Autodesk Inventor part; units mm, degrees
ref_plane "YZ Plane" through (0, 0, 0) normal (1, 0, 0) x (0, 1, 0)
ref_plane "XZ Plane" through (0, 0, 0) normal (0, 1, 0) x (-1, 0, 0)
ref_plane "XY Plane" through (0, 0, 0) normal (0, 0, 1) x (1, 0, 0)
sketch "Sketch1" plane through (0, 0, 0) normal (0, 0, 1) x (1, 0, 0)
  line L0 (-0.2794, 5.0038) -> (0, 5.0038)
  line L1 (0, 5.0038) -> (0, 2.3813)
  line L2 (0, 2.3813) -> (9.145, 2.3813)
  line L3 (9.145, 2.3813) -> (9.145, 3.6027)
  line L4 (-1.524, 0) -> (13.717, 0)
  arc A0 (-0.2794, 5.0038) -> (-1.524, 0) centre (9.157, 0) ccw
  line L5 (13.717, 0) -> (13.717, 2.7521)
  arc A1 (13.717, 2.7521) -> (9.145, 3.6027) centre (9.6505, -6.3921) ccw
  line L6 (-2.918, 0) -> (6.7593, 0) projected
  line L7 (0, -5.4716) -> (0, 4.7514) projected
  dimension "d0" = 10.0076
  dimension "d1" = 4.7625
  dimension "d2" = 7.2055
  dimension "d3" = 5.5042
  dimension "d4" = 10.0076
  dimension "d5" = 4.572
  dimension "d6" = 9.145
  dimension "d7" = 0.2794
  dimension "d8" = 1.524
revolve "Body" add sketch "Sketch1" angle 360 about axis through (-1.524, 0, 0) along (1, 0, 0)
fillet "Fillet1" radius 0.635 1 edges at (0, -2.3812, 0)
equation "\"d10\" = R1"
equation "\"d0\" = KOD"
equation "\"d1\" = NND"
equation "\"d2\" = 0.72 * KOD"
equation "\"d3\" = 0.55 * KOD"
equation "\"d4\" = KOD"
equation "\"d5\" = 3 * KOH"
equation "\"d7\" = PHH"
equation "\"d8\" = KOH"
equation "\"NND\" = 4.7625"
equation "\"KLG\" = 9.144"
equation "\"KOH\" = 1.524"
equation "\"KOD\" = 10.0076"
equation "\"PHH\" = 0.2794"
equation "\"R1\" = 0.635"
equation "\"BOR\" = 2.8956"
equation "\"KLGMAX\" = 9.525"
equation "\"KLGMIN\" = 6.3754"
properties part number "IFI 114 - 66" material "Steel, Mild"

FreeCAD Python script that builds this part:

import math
import FreeCAD as App
import Part
import Sketcher

V = App.Vector
Q = App.Units.Quantity


def edges_at(feature, points):
    """Names of the edges that pass closest to the given points."""
    edges = feature.Shape.Edges
    near = lambda p: min(range(len(edges)), key=lambda i: edges[i].distToShape(Part.Vertex(*p))[0])
    return sorted({f"Edge{near(p) + 1}" for p in points})

doc = App.newDocument("Part")
body = doc.addObject("PartDesign::Body", "Body")

sketch1 = doc.addObject("Sketcher::SketchObject", "Sketch")
body.addObject(sketch1)
sketch1.AttachmentSupport = (doc.XY_Plane, [""])
sketch1.MapMode = "FlatFace"
sketch1.addGeometry(Part.LineSegment(V(0, 5.0038, 0), V(-0.2794, 5.0038, 0)), False)
sketch1.addGeometry(Part.ArcOfCircle(Part.Circle(V(9.157, 0, 0), V(0, 0, 1), 10.680995), math.radians(152.064523), math.radians(180)), False)
sketch1.addGeometry(Part.LineSegment(V(-1.524, 0, 0), V(13.717, 0, 0)), False)
sketch1.addGeometry(Part.LineSegment(V(13.717, 0, 0), V(13.717, 2.7521, 0)), False)
sketch1.addGeometry(Part.ArcOfCircle(Part.Circle(V(9.650843, -6.390995, 0), V(0, 0, 1), 10.006489), math.radians(66.024122), math.radians(92.897623)), False)
sketch1.addGeometry(Part.LineSegment(V(9.145, 3.6027, 0), V(9.145, 2.3813, 0)), False)
sketch1.addGeometry(Part.LineSegment(V(9.145, 2.3813, 0), V(0, 2.3813, 0)), False)
sketch1.addGeometry(Part.LineSegment(V(0, 2.3813, 0), V(0, 5.0038, 0)), False)
sketch1.addConstraint(Sketcher.Constraint("Coincident", 0, 2, 1, 1))
sketch1.addConstraint(Sketcher.Constraint("Coincident", 1, 2, 2, 1))
sketch1.addConstraint(Sketcher.Constraint("Coincident", 2, 2, 3, 1))
sketch1.addConstraint(Sketcher.Constraint("Coincident", 3, 2, 4, 1))
sketch1.addConstraint(Sketcher.Constraint("Coincident", 4, 2, 5, 1))
sketch1.addConstraint(Sketcher.Constraint("Coincident", 5, 2, 6, 1))
sketch1.addConstraint(Sketcher.Constraint("Coincident", 6, 2, 7, 1))
sketch1.addConstraint(Sketcher.Constraint("Coincident", 7, 2, 0, 1))
sketch1.addConstraint(Sketcher.Constraint("Horizontal", 0))
sketch1.addConstraint(Sketcher.Constraint("Horizontal", 2))
sketch1.addConstraint(Sketcher.Constraint("Vertical", 3))
sketch1.addConstraint(Sketcher.Constraint("Vertical", 5))
sketch1.addConstraint(Sketcher.Constraint("Horizontal", 6))
sketch1.addConstraint(Sketcher.Constraint("Vertical", 7))
sketch1.addConstraint(Sketcher.Constraint("PointOnObject", 1, 3, -1))
sketch1.addConstraint(Sketcher.Constraint("PointOnObject", 1, 2, -1))
sketch1.addConstraint(Sketcher.Constraint("PointOnObject", 6, 2, -2))
sketch1.addConstraint(Sketcher.Constraint("DistanceX", 0, 2, 0, 1, Q("0.011 in")))
sketch1.addConstraint(Sketcher.Constraint("DistanceX", 1, 2, -1, 1, Q("0.06 in")))
sketch1.addConstraint(Sketcher.Constraint("DistanceX", 4, 2, 3, 2, Q("0.18 in")))
sketch1.addConstraint(Sketcher.Constraint("DistanceX", 6, 2, 6, 1, Q("9.145 mm")))
sketch1.addConstraint(Sketcher.Constraint("Radius", 1, Q("0.4205 in")))
sketch1.addConstraint(Sketcher.Constraint("Radius", 4, Q("10.0065 mm")))
sketch1.addConstraint(Sketcher.Constraint("DistanceY", -1, 1, 5, 2, Q("0.093752 in")))
sketch1.addConstraint(Sketcher.Constraint("DistanceY", 3, 1, 3, 2, Q("2.752 mm")))
sketch1.addConstraint(Sketcher.Constraint("DistanceY", 5, 2, 5, 1, Q("1.2214 mm")))
revolution = doc.addObject("PartDesign::Revolution", "Revolution")
body.addObject(revolution)
revolution.Profile = sketch1
revolution.ReferenceAxis = (sketch1, ["H_Axis"])
revolution.Angle = 360
doc.recompute()

fillet = doc.addObject("PartDesign::Fillet", "Fillet")
body.addObject(fillet)
fillet.Base = (revolution, edges_at(revolution, [(0, -2.381, 0)]))
fillet.Radius = Q("0.025 in")

doc.recompute()
